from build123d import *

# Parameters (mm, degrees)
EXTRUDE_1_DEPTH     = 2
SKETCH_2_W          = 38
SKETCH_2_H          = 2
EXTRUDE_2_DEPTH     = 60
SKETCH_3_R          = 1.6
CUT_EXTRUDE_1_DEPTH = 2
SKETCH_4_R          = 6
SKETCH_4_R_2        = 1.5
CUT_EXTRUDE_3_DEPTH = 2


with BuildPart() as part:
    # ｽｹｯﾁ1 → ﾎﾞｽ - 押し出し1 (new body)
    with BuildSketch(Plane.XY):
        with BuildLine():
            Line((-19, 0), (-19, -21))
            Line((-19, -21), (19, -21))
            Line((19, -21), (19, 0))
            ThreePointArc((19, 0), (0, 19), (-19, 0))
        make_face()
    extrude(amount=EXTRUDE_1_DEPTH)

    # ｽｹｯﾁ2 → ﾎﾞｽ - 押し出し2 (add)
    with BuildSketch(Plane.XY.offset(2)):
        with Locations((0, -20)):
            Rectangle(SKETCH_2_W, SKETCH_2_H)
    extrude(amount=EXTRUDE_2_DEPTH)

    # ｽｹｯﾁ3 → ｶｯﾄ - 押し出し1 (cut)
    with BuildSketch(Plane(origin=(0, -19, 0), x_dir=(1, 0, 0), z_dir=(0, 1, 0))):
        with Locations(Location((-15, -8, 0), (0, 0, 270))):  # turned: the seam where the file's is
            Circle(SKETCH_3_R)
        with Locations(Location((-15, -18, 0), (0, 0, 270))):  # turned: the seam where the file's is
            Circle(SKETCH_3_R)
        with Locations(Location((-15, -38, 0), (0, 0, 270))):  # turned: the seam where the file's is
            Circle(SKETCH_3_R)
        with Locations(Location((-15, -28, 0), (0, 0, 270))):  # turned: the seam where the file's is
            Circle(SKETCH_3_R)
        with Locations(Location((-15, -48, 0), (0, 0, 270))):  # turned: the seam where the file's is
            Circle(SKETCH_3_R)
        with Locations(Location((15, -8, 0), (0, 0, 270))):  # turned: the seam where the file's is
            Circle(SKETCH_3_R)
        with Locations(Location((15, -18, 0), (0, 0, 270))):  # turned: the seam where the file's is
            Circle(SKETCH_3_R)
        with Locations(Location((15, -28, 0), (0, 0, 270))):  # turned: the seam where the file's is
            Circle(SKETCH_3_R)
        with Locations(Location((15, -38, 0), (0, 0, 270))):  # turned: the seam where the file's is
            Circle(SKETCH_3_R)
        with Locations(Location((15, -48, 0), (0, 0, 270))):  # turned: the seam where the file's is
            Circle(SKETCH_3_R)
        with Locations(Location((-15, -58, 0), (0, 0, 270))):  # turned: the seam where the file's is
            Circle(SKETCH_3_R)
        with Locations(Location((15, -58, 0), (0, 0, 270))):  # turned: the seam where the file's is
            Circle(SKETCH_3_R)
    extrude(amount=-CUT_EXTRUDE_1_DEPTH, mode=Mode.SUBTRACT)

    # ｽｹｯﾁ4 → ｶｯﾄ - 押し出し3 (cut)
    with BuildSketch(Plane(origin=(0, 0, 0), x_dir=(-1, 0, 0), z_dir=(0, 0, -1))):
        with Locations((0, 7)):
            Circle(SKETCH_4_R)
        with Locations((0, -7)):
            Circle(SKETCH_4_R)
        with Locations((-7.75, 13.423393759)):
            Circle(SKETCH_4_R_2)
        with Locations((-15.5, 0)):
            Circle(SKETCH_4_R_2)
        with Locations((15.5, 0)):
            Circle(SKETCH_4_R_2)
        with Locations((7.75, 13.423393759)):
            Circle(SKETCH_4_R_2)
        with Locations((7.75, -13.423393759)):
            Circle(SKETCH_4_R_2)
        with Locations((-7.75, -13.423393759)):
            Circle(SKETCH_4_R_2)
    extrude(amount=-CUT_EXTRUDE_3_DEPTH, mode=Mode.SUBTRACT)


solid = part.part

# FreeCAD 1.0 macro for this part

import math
import FreeCAD as App
import Part
import Sketcher
from FreeCAD import Vector


def add_polygon(sketch, points):
    """Adds a closed chain of lines whose ends are joined by coincident constraints."""
    first, n = sketch.GeometryCount, len(points)
    for a, b in zip(points, points[1:] + points[:1]):
        sketch.addGeometry(Part.LineSegment(App.Vector(*a, 0), App.Vector(*b, 0)), False)
    for i in range(n):
        sketch.addConstraint(Sketcher.Constraint("Coincident", first + i, 2, first + (i + 1) % n, 1))

doc = App.newDocument("Part")
body = doc.addObject("PartDesign::Body", "Body")

sketch1 = body.newObject("Sketcher::SketchObject", "Sketch")
sketch1.AttachmentSupport = (doc.getObject("XY_Plane"), [""])
sketch1.MapMode = "FlatFace"
sketch1.addGeometry(Part.LineSegment(Vector(-19, 0, 0), Vector(-19, -21, 0)), False)
sketch1.addGeometry(Part.LineSegment(Vector(-19, -21, 0), Vector(19, -21, 0)), False)
sketch1.addGeometry(Part.LineSegment(Vector(19, -21, 0), Vector(19, 0, 0)), False)
sketch1.addGeometry(Part.ArcOfCircle(Part.Circle(Vector(0, 0, 0), Vector(0, 0, 1), 19), math.radians(0), math.radians(180)), False)
sketch1.addConstraint(Sketcher.Constraint("Coincident", 0, 2, 1, 1))
sketch1.addConstraint(Sketcher.Constraint("Coincident", 1, 2, 2, 1))
sketch1.addConstraint(Sketcher.Constraint("Tangent", 2, 2, 3, 1))
sketch1.addConstraint(Sketcher.Constraint("Tangent", 3, 2, 0, 1))
sketch1.addConstraint(Sketcher.Constraint("Vertical", 0))
sketch1.addConstraint(Sketcher.Constraint("Horizontal", 1))
sketch1.addConstraint(Sketcher.Constraint("Vertical", 2))
sketch1.addConstraint(Sketcher.Constraint("Coincident", 3, 3, -1, 1))
sketch1.addConstraint(Sketcher.Constraint("Radius", 3, 19.0))
sketch1.addConstraint(Sketcher.Constraint("DistanceY", 0, 2, 0, 1, 21.0))
pad1 = body.newObject("PartDesign::Pad", "Pad")
pad1.Profile = sketch1
pad1.Length = 2

sketch2 = body.newObject("Sketcher::SketchObject", "Sketch001")
sketch2.AttachmentSupport = (doc.getObject("XY_Plane"), [""])
sketch2.MapMode = "FlatFace"
sketch2.AttachmentOffset = App.Placement(Vector(0, 0, 2), App.Rotation())
add_polygon(sketch2, [(-19, -19), (-19, -21), (19, -21), (19, -19)])
sketch2.addConstraint(Sketcher.Constraint("Vertical", 0))
sketch2.addConstraint(Sketcher.Constraint("Horizontal", 1))
sketch2.addConstraint(Sketcher.Constraint("Vertical", 2))
sketch2.addConstraint(Sketcher.Constraint("Horizontal", 3))
sketch2.addConstraint(Sketcher.Constraint("DistanceX", 1, 1, 1, 2, 38.0))
sketch2.addConstraint(Sketcher.Constraint("DistanceY", 0, 2, 0, 1, 2.0))
sketch2.addConstraint(Sketcher.Constraint("DistanceX", 0, 2, -1, 1, 19.0))
sketch2.addConstraint(Sketcher.Constraint("DistanceY", 0, 2, -1, 1, 21.0))
pad2 = body.newObject("PartDesign::Pad", "Pad001")
pad2.Profile = sketch2
pad2.Length = 60

sketch3 = body.newObject("Sketcher::SketchObject", "Sketch002")
sketch3.AttachmentSupport = (doc.getObject("XZ_Plane"), [""])
sketch3.MapMode = "FlatFace"
sketch3.AttachmentOffset = App.Placement(Vector(0, 0, 19), App.Rotation())
sketch3.addGeometry(Part.Circle(Vector(-15, 8, 0), Vector(0, 0, 1), 1.6), False)
sketch3.addGeometry(Part.Circle(Vector(-15, 18, 0), Vector(0, 0, 1), 1.6), False)
sketch3.addGeometry(Part.Circle(Vector(-15, 38, 0), Vector(0, 0, 1), 1.6), False)
sketch3.addGeometry(Part.Circle(Vector(-15, 28, 0), Vector(0, 0, 1), 1.6), False)
sketch3.addGeometry(Part.Circle(Vector(-15, 48, 0), Vector(0, 0, 1), 1.6), False)
sketch3.addGeometry(Part.Circle(Vector(15, 8, 0), Vector(0, 0, 1), 1.6), False)
sketch3.addGeometry(Part.Circle(Vector(15, 18, 0), Vector(0, 0, 1), 1.6), False)
sketch3.addGeometry(Part.Circle(Vector(15, 28, 0), Vector(0, 0, 1), 1.6), False)
sketch3.addGeometry(Part.Circle(Vector(15, 38, 0), Vector(0, 0, 1), 1.6), False)
sketch3.addGeometry(Part.Circle(Vector(15, 48, 0), Vector(0, 0, 1), 1.6), False)
sketch3.addGeometry(Part.Circle(Vector(-15, 58, 0), Vector(0, 0, 1), 1.6), False)
sketch3.addGeometry(Part.Circle(Vector(15, 58, 0), Vector(0, 0, 1), 1.6), False)
sketch3.addConstraint(Sketcher.Constraint("Equal", 0, 1))
sketch3.addConstraint(Sketcher.Constraint("Equal", 1, 2))
sketch3.addConstraint(Sketcher.Constraint("Equal", 2, 3))
sketch3.addConstraint(Sketcher.Constraint("Equal", 3, 4))
sketch3.addConstraint(Sketcher.Constraint("Equal", 4, 5))
sketch3.addConstraint(Sketcher.Constraint("Equal", 5, 6))
sketch3.addConstraint(Sketcher.Constraint("Equal", 6, 7))
sketch3.addConstraint(Sketcher.Constraint("Equal", 7, 8))
sketch3.addConstraint(Sketcher.Constraint("Equal", 8, 9))
sketch3.addConstraint(Sketcher.Constraint("Equal", 9, 10))
sketch3.addConstraint(Sketcher.Constraint("Equal", 10, 11))
sketch3.addConstraint(Sketcher.Constraint("Symmetric", 0, 3, 5, 3, -2))
sketch3.addConstraint(Sketcher.Constraint("Symmetric", 1, 3, 6, 3, -2))
sketch3.addConstraint(Sketcher.Constraint("Symmetric", 3, 3, 7, 3, -2))
sketch3.addConstraint(Sketcher.Constraint("Symmetric", 2, 3, 8, 3, -2))
sketch3.addConstraint(Sketcher.Constraint("Symmetric", 4, 3, 9, 3, -2))
sketch3.addConstraint(Sketcher.Constraint("Symmetric", 10, 3, 11, 3, -2))
sketch3.addConstraint(Sketcher.Constraint("Vertical", 0, 3, 1, 3))
sketch3.addConstraint(Sketcher.Constraint("Vertical", 1, 3, 2, 3))
sketch3.addConstraint(Sketcher.Constraint("Vertical", 2, 3, 3, 3))
sketch3.addConstraint(Sketcher.Constraint("Vertical", 3, 3, 4, 3))
sketch3.addConstraint(Sketcher.Constraint("Vertical", 4, 3, 10, 3))
sketch3.addConstraint(Sketcher.Constraint("Diameter", 0, 3.2))
sketch3.addConstraint(Sketcher.Constraint("DistanceX", 0, 3, -1, 1, 15.0))
sketch3.addConstraint(Sketcher.Constraint("DistanceY", -1, 1, 0, 3, 8.0))
sketch3.addConstraint(Sketcher.Constraint("DistanceY", -1, 1, 1, 3, 18.0))
sketch3.addConstraint(Sketcher.Constraint("DistanceY", -1, 1, 2, 3, 38.0))
sketch3.addConstraint(Sketcher.Constraint("DistanceY", -1, 1, 3, 3, 28.0))
sketch3.addConstraint(Sketcher.Constraint("DistanceY", -1, 1, 4, 3, 48.0))
sketch3.addConstraint(Sketcher.Constraint("DistanceY", -1, 1, 10, 3, 58.0))
pocket1 = body.newObject("PartDesign::Pocket", "Pocket")
pocket1.Profile = sketch3
pocket1.Length = 2
pocket1.Reversed = True

sketch4 = body.newObject("Sketcher::SketchObject", "Sketch003")
sketch4.AttachmentSupport = (doc.getObject("XY_Plane"), [""])
sketch4.MapMode = "FlatFace"
sketch4.addGeometry(Part.Circle(Vector(0, 7, 0), Vector(0, 0, 1), 6), False)
sketch4.addGeometry(Part.Circle(Vector(0, -7, 0), Vector(0, 0, 1), 6), False)
sketch4.addGeometry(Part.Circle(Vector(7.8, 13.4, 0), Vector(0, 0, 1), 1.5), False)
sketch4.addGeometry(Part.Circle(Vector(15.5, 0, 0), Vector(0, 0, 1), 1.5), False)
sketch4.addGeometry(Part.Circle(Vector(-15.5, 0, 0), Vector(0, 0, 1), 1.5), False)
sketch4.addGeometry(Part.Circle(Vector(-7.8, 13.4, 0), Vector(0, 0, 1), 1.5), False)
sketch4.addGeometry(Part.Circle(Vector(-7.8, -13.4, 0), Vector(0, 0, 1), 1.5), False)
sketch4.addGeometry(Part.Circle(Vector(7.8, -13.4, 0), Vector(0, 0, 1), 1.5), False)
sketch4.addConstraint(Sketcher.Constraint("Equal", 0, 1))
sketch4.addConstraint(Sketcher.Constraint("Equal", 2, 3))
sketch4.addConstraint(Sketcher.Constraint("Equal", 3, 4))
sketch4.addConstraint(Sketcher.Constraint("Equal", 4, 5))
sketch4.addConstraint(Sketcher.Constraint("Equal", 5, 6))
sketch4.addConstraint(Sketcher.Constraint("Equal", 6, 7))
sketch4.addConstraint(Sketcher.Constraint("Symmetric", 0, 3, 1, 3, -1, 1))
sketch4.addConstraint(Sketcher.Constraint("Symmetric", 3, 3, 4, 3, -1, 1))
sketch4.addConstraint(Sketcher.Constraint("Symmetric", 2, 3, 6, 3, -1, 1))
sketch4.addConstraint(Sketcher.Constraint("Symmetric", 5, 3, 7, 3, -1, 1))
sketch4.addConstraint(Sketcher.Constraint("Symmetric", 2, 3, 5, 3, -2))
sketch4.addConstraint(Sketcher.Constraint("PointOnObject", 0, 3, -2))
sketch4.addConstraint(Sketcher.Constraint("PointOnObject", 3, 3, -1))
sketch4.addConstraint(Sketcher.Constraint("Diameter", 0, 12.0))
sketch4.addConstraint(Sketcher.Constraint("Diameter", 2, 3.0))
sketch4.addConstraint(Sketcher.Constraint("DistanceY", -1, 1, 0, 3, 7.0))
sketch4.addConstraint(Sketcher.Constraint("DistanceX", 4, 3, 3, 3, 31.0))
sketch4.addConstraint(Sketcher.Constraint("DistanceX", 5, 3, 2, 3, 15.5))
sketch4.addConstraint(Sketcher.Constraint("DistanceY", -1, 1, 2, 3, 13.423394))
pocket2 = body.newObject("PartDesign::Pocket", "Pocket001")
pocket2.Profile = sketch4
pocket2.Length = 2
pocket2.Reversed = True

doc.recompute()
